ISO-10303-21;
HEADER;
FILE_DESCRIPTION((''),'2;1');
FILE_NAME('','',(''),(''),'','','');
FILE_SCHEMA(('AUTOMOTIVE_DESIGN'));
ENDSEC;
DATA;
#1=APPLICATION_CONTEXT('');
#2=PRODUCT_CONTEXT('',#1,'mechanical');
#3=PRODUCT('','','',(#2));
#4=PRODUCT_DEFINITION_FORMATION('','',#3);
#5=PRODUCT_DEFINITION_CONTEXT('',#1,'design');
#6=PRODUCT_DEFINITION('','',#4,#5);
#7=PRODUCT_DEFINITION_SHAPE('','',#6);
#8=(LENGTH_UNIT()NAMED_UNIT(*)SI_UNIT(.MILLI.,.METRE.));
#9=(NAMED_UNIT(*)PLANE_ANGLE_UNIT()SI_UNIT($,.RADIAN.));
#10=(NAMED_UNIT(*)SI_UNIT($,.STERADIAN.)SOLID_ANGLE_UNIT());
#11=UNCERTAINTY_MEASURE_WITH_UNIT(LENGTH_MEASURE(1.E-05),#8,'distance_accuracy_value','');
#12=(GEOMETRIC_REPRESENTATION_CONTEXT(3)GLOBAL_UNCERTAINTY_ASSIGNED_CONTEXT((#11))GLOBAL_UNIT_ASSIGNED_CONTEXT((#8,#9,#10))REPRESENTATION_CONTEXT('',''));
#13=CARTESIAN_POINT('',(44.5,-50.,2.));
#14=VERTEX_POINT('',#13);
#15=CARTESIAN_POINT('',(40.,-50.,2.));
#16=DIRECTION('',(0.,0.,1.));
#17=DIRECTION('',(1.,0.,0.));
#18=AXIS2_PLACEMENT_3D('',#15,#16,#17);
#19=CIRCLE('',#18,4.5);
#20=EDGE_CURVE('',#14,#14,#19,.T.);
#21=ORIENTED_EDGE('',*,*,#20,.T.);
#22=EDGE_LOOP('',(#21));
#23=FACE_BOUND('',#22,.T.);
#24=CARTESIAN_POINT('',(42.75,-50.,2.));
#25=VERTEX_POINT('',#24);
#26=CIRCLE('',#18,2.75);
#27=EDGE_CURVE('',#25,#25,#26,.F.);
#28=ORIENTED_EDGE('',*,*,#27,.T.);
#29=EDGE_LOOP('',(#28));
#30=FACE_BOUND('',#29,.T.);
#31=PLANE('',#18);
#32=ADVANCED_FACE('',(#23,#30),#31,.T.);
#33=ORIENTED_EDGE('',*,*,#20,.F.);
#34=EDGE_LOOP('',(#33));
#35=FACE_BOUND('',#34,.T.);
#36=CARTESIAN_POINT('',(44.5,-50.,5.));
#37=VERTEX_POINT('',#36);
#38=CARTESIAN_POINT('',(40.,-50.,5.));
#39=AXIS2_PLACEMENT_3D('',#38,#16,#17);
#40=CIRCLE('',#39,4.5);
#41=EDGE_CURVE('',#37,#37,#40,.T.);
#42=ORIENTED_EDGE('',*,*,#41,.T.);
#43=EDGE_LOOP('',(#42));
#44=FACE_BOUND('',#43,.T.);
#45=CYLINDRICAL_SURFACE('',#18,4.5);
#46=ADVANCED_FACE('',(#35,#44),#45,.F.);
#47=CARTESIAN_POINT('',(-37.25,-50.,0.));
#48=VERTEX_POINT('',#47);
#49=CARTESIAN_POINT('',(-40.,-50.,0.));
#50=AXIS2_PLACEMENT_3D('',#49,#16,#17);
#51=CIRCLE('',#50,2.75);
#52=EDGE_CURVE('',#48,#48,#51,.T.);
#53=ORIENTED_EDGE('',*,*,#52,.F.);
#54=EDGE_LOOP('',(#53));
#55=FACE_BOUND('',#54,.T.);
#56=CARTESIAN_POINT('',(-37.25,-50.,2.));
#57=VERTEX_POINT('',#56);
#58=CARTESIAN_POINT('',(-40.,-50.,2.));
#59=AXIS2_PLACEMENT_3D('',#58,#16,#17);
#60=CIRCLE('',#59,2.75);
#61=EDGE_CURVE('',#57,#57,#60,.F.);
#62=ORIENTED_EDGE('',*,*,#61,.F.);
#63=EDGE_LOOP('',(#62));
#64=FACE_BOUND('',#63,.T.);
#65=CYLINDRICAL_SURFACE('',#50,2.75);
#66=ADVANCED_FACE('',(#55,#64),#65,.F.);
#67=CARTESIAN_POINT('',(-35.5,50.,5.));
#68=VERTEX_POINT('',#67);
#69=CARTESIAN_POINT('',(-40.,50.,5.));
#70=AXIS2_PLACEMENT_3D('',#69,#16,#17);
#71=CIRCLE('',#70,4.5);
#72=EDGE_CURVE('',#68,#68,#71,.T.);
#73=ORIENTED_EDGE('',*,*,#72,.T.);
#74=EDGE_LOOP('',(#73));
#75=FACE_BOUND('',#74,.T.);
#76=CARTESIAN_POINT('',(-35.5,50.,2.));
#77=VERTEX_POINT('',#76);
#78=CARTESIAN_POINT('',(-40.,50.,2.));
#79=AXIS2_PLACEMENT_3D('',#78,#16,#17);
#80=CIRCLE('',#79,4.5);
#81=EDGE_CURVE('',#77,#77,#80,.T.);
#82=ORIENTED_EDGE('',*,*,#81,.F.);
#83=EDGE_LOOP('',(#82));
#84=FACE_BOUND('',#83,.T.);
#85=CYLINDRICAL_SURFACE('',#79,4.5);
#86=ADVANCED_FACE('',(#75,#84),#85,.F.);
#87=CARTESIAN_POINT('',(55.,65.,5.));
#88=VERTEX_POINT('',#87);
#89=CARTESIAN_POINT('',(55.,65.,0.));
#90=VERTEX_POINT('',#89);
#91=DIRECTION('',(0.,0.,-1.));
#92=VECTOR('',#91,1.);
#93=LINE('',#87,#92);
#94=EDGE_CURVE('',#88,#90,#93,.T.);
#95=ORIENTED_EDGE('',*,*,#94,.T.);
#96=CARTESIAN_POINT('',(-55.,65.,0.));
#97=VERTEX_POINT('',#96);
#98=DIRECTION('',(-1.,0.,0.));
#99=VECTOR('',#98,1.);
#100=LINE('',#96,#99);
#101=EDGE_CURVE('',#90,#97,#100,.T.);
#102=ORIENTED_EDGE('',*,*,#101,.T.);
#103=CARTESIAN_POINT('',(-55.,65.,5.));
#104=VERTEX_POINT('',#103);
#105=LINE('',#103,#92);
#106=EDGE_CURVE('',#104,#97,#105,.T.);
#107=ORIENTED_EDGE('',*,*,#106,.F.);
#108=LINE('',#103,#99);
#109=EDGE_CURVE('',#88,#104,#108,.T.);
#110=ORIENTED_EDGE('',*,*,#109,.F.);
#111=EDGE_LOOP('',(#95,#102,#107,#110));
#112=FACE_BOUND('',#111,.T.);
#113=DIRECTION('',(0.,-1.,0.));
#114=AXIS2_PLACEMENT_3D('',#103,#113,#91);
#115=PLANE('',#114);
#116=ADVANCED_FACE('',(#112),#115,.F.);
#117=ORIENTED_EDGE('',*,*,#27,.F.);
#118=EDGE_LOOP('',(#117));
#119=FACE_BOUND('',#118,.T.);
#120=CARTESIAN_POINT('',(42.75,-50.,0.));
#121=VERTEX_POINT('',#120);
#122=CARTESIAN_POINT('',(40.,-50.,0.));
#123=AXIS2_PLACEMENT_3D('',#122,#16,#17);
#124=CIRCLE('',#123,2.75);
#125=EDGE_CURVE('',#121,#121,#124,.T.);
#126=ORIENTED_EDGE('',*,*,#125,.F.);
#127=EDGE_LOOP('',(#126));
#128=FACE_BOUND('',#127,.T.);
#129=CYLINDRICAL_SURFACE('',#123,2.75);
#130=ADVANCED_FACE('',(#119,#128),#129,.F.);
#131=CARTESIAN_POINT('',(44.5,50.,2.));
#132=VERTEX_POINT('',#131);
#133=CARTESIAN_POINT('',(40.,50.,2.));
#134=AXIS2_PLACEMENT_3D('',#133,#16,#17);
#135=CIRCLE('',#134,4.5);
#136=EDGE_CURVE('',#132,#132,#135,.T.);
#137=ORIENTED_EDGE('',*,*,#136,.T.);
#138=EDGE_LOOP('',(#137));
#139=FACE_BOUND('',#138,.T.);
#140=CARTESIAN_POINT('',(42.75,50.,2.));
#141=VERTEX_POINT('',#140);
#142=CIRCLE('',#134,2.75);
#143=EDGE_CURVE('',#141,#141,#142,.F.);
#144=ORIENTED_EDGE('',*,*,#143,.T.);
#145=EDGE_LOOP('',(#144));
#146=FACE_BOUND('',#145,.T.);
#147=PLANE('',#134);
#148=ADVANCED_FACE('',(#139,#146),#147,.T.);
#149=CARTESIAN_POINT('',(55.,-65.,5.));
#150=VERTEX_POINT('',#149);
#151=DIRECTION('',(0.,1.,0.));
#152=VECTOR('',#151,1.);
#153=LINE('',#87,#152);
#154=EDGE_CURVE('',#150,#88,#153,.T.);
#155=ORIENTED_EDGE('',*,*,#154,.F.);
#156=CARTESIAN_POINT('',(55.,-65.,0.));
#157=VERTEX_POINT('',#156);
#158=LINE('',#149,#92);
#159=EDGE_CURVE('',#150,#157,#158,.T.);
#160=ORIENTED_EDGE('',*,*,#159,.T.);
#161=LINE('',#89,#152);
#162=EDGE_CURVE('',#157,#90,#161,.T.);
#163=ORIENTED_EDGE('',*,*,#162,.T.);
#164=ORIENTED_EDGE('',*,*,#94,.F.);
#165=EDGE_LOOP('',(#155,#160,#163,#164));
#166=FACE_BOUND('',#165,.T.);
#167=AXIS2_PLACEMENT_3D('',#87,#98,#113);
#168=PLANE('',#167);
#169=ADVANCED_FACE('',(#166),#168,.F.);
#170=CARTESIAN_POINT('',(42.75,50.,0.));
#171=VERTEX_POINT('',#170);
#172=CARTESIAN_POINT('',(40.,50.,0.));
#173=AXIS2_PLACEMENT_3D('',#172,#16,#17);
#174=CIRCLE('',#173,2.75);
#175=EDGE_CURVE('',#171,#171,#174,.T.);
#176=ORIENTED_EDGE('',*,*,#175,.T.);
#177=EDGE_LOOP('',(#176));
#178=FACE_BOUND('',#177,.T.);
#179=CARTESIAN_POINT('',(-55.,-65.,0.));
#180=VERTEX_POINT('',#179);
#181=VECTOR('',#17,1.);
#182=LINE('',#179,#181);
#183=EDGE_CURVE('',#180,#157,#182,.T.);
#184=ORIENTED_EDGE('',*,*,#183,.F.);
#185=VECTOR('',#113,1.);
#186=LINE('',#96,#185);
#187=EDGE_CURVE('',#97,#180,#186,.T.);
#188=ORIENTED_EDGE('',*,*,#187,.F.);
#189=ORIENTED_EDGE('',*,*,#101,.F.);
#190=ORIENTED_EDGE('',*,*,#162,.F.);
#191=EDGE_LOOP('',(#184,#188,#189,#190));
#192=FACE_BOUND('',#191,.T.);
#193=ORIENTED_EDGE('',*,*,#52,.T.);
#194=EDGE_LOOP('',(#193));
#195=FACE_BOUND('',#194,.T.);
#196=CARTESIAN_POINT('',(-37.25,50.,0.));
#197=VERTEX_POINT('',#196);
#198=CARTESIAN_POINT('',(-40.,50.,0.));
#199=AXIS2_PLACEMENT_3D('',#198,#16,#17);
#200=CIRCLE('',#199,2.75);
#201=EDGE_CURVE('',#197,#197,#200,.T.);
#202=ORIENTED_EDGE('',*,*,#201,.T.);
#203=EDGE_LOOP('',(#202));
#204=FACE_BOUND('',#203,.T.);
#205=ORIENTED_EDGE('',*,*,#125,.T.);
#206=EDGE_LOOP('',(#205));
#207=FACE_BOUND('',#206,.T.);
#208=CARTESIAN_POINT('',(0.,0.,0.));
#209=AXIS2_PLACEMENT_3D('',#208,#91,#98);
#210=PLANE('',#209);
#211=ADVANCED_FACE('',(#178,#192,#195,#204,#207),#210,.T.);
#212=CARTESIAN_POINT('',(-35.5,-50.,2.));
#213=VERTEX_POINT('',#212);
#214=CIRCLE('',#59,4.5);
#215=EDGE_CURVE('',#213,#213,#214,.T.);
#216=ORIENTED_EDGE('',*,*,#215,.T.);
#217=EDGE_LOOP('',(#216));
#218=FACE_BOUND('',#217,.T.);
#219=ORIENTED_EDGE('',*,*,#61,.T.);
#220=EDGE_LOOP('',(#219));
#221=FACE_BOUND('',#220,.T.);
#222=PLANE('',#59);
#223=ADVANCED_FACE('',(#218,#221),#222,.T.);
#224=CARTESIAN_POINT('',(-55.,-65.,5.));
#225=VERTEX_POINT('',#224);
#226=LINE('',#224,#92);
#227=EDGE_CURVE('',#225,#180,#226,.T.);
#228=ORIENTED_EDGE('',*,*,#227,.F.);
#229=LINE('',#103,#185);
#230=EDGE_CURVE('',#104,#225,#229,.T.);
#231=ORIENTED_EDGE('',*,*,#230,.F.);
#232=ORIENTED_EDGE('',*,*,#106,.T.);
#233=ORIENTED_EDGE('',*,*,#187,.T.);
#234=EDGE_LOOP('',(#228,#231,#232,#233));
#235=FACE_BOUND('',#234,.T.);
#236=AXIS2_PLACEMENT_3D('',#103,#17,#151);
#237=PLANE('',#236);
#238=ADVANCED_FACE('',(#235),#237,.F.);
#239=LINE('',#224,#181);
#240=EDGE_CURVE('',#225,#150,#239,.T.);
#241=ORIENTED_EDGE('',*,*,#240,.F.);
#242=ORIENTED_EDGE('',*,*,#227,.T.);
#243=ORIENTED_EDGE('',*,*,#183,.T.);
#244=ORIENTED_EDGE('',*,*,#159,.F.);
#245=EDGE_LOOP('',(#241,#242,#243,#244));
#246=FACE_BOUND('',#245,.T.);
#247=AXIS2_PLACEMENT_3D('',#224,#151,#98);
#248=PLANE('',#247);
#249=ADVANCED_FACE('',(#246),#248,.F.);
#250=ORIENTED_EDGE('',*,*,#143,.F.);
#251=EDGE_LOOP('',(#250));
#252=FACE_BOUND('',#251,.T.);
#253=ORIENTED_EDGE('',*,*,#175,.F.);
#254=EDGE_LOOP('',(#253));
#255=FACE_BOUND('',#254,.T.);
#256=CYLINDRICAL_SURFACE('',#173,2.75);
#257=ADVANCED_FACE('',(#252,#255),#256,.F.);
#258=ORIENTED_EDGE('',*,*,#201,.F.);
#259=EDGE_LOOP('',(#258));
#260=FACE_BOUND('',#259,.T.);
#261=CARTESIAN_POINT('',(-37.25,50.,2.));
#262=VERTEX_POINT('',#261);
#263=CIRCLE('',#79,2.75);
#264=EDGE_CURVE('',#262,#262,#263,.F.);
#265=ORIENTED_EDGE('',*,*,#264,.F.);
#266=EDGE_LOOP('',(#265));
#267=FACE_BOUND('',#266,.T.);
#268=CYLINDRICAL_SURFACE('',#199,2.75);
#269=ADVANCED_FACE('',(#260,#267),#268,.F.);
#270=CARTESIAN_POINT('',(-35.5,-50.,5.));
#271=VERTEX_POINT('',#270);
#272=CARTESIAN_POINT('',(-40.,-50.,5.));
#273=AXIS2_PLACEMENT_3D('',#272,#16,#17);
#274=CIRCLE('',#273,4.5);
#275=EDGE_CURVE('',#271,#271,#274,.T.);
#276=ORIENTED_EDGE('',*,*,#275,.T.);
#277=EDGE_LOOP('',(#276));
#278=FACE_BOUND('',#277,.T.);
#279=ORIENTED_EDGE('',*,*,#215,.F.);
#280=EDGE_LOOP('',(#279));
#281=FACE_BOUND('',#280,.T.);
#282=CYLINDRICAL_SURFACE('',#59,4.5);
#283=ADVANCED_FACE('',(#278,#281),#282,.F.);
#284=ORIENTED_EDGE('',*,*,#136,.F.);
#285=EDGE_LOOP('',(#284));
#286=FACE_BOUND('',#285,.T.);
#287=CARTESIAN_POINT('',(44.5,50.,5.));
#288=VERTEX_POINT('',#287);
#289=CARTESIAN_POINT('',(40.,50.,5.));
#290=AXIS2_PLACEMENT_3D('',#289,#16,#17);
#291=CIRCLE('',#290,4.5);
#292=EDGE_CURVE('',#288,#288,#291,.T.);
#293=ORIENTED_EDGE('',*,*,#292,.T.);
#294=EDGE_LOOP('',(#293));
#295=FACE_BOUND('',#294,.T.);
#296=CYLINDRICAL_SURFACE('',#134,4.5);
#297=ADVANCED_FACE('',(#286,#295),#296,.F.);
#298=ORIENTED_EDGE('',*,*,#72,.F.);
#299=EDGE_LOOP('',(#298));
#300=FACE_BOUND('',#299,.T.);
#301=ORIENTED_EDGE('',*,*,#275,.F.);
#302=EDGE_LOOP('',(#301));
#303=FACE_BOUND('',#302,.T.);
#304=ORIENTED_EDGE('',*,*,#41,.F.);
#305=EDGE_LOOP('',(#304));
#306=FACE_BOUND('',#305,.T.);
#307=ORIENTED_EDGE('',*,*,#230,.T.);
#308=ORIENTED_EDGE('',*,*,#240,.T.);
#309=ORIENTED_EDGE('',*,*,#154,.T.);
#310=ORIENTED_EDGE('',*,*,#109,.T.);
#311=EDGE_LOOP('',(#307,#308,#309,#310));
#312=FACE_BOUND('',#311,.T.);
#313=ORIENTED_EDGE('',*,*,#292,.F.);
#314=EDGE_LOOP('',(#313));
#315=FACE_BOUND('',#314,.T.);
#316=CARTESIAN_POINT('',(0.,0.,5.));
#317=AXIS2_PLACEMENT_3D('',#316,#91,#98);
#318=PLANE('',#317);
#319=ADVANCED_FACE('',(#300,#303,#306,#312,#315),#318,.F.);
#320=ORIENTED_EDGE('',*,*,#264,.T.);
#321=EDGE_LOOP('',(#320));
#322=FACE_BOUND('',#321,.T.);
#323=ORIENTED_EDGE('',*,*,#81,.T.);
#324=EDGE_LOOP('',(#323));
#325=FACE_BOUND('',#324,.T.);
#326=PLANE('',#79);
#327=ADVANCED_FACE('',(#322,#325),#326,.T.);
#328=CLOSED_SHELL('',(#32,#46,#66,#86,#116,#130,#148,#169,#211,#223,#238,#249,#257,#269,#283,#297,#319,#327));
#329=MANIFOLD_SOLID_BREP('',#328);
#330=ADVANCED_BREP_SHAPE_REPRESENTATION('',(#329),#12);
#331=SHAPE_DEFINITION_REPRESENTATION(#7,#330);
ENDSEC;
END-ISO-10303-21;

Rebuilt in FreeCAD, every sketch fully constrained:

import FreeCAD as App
import Part
import Sketcher
from FreeCAD import Vector
Q = App.Units.Quantity

doc = App.newDocument("Part")
body = doc.addObject("PartDesign::Body", "Body")

# Sketch on XY plane
sketch1 = body.newObject("Sketcher::SketchObject", "Sketch")
sketch1.AttachmentSupport = (doc.getObject("XY_Plane"), [""])
sketch1.MapMode = "FlatFace"
sketch1.addGeometry([
    Part.LineSegment(Vector(-55, -65, 0), Vector(55, -65, 0)),
    Part.LineSegment(Vector(55, -65, 0), Vector(55, 65, 0)),
    Part.LineSegment(Vector(55, 65, 0), Vector(-55, 65, 0)),
    Part.LineSegment(Vector(-55, 65, 0), Vector(-55, -65, 0)),
], False)
sketch1.addConstraint([
    Sketcher.Constraint("Coincident", 0, 2, 1, 1),
    Sketcher.Constraint("Coincident", 1, 2, 2, 1),
    Sketcher.Constraint("Coincident", 2, 2, 3, 1),
    Sketcher.Constraint("Coincident", 3, 2, 0, 1),
    Sketcher.Constraint("Horizontal", 0),
    Sketcher.Constraint("Vertical", 1),
    Sketcher.Constraint("Horizontal", 2),
    Sketcher.Constraint("Vertical", 3),
    Sketcher.Constraint("Symmetric", 0, 2, 2, 2, -1, 1),
    Sketcher.Constraint("DistanceX", 0, 1, 0, 2, Q("110 mm")),
    Sketcher.Constraint("DistanceY", 1, 1, 1, 2, Q("130 mm")),
])
pad1 = body.newObject("PartDesign::Pad", "Pad")
pad1.Profile = sketch1
pad1.Length = 5

# Sketch on XY plane
sketch2 = body.newObject("Sketcher::SketchObject", "Sketch001")
sketch2.AttachmentSupport = (doc.getObject("XY_Plane"), [""])
sketch2.MapMode = "FlatFace"
sketch2.AttachmentOffset = App.Placement(Vector(0, 0, 5), App.Rotation())
sketch2.addGeometry([
    Part.Circle(Vector(-40, 50, 0), Vector(0, 0, 1), 2.8),
    Part.Circle(Vector(40, -50, 0), Vector(0, 0, 1), 2.8),
    Part.Circle(Vector(-40, -50, 0), Vector(0, 0, 1), 2.8),
    Part.Circle(Vector(40, 50, 0), Vector(0, 0, 1), 2.8),
], False)
sketch2.addConstraint([
    Sketcher.Constraint("Equal", 0, 1),
    Sketcher.Constraint("Equal", 1, 2),
    Sketcher.Constraint("Equal", 2, 3),
    Sketcher.Constraint("Symmetric", 0, 3, 1, 3, -1, 1),
    Sketcher.Constraint("Symmetric", 2, 3, 3, 3, -1, 1),
    Sketcher.Constraint("Symmetric", 1, 3, 2, 3, -2),
    Sketcher.Constraint("Diameter", 0, Q("5.5 mm")),
    Sketcher.Constraint("DistanceX", 0, 3, -1, 1, Q("40 mm")),
    Sketcher.Constraint("DistanceY", -1, 1, 0, 3, Q("50 mm")),
])
pocket1 = body.newObject("PartDesign::Pocket", "Pocket")
pocket1.Profile = sketch2
pocket1.Type = "ThroughAll"

# Sketch on XY plane
sketch3 = body.newObject("Sketcher::SketchObject", "Sketch002")
sketch3.AttachmentSupport = (doc.getObject("XY_Plane"), [""])
sketch3.MapMode = "FlatFace"
sketch3.AttachmentOffset = App.Placement(Vector(0, 0, 5), App.Rotation())
sketch3.addGeometry([
    Part.Circle(Vector(-40, 50, 0), Vector(0, 0, 1), 4.5),
    Part.Circle(Vector(40, 50, 0), Vector(0, 0, 1), 4.5),
    Part.Circle(Vector(40, -50, 0), Vector(0, 0, 1), 4.5),
    Part.Circle(Vector(-40, -50, 0), Vector(0, 0, 1), 4.5),
], False)
sketch3.addConstraint([
    Sketcher.Constraint("Equal", 0, 1),
    Sketcher.Constraint("Equal", 1, 2),
    Sketcher.Constraint("Equal", 2, 3),
    Sketcher.Constraint("Symmetric", 0, 3, 2, 3, -1, 1),
    Sketcher.Constraint("Symmetric", 1, 3, 3, 3, -1, 1),
    Sketcher.Constraint("Symmetric", 0, 3, 1, 3, -2),
    Sketcher.Constraint("Diameter", 0, Q("9 mm")),
    Sketcher.Constraint("DistanceX", 0, 3, -1, 1, Q("40 mm")),
    Sketcher.Constraint("DistanceY", -1, 1, 0, 3, Q("50 mm")),
])
pocket2 = body.newObject("PartDesign::Pocket", "Pocket001")
pocket2.Profile = sketch3
pocket2.Length = 3

doc.recompute()
